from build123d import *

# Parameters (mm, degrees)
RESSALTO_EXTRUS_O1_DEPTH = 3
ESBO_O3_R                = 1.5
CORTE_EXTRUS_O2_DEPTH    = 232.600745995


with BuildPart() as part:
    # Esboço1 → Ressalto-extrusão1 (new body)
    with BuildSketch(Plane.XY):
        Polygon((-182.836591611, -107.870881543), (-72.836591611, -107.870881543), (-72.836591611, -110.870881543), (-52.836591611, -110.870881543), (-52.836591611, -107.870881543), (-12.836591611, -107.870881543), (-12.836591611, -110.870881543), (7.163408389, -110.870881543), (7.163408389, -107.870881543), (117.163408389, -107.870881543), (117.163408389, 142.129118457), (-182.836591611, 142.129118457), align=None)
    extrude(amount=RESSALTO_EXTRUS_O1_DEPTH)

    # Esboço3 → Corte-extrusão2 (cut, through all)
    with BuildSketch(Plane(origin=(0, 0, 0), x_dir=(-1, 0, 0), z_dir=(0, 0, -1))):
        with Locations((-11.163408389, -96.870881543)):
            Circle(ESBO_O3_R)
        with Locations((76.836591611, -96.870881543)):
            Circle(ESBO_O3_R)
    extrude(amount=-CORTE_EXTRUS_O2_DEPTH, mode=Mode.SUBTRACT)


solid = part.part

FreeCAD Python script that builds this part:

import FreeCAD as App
import Part
import Sketcher

V = App.Vector


def add_polygon(sketch, points):
    """Adds a closed chain of lines whose ends are joined by coincident constraints."""
    first, n = sketch.GeometryCount, len(points)
    for a, b in zip(points, points[1:] + points[:1]):
        sketch.addGeometry(Part.LineSegment(App.Vector(*a, 0), App.Vector(*b, 0)), False)
    for i in range(n):
        sketch.addConstraint(Sketcher.Constraint("Coincident", first + i, 2, first + (i + 1) % n, 1))

doc = App.newDocument("Part")
body = doc.addObject("PartDesign::Body", "Body")

# Sketch on XY plane
sketch1 = doc.addObject("Sketcher::SketchObject", "Sketch")
body.addObject(sketch1)
sketch1.AttachmentSupport = (doc.XY_Plane, [""])
sketch1.MapMode = "FlatFace"
add_polygon(sketch1, [(-182.836592, -107.870882), (-72.836592, -107.870882), (-72.836592, -110.870882), (-52.836592, -110.870882), (-52.836592, -107.870882), (-12.836592, -107.870882), (-12.836592, -110.870882), (7.163408, -110.870882), (7.163408, -107.870882), (117.163408, -107.870882), (117.163408, 142.129118), (-182.836592, 142.129118)])  # lines 0-11
sketch1.addConstraint([
    Sketcher.Constraint("Horizontal", 0),
    Sketcher.Constraint("Vertical", 1),
    Sketcher.Constraint("Horizontal", 2),
    Sketcher.Constraint("Vertical", 3),
    Sketcher.Constraint("Horizontal", 4),
    Sketcher.Constraint("Vertical", 5),
    Sketcher.Constraint("Horizontal", 6),
    Sketcher.Constraint("Vertical", 7),
    Sketcher.Constraint("Horizontal", 8),
    Sketcher.Constraint("Vertical", 9),
    Sketcher.Constraint("Horizontal", 10),
    Sketcher.Constraint("Vertical", 11),
    Sketcher.Constraint("Horizontal", 0, 2, 3, 2),
    Sketcher.Constraint("Horizontal", 2, 2, 5, 2),
    Sketcher.Constraint("Horizontal", 4, 2, 7, 2),
    Sketcher.Constraint("Equal", 2, 6),
    Sketcher.Constraint("Equal", 0, 8),
    Sketcher.Constraint("DistanceX", 0, 1, 0, 2, 110.0),
    Sketcher.Constraint("DistanceX", 2, 1, 2, 2, 20.0),
    Sketcher.Constraint("DistanceX", 4, 1, 4, 2, 40.0),
    Sketcher.Constraint("DistanceY", 1, 2, 1, 1, 3.0),
    Sketcher.Constraint("DistanceY", 9, 1, 9, 2, 250.0),
    Sketcher.Constraint("DistanceX", 0, 2, -1, 1, 72.836592),
    Sketcher.Constraint("DistanceY", 0, 2, -1, 1, 107.870882),
])
pad1 = doc.addObject("PartDesign::Pad", "Pad")
body.addObject(pad1)
pad1.Profile = sketch1
pad1.Length = 3

# Sketch on XY plane
sketch2 = doc.addObject("Sketcher::SketchObject", "Sketch001")
body.addObject(sketch2)
sketch2.AttachmentSupport = (doc.XY_Plane, [""])
sketch2.MapMode = "FlatFace"
sketch2.addGeometry([
    Part.Circle(V(11.163408, -96.870882, 0), V(0, 0, 1), 1.5),
    Part.Circle(V(-76.836592, -96.870882, 0), V(0, 0, 1), 1.5),
], False)
sketch2.addConstraint([
    Sketcher.Constraint("Equal", 0, 1),
    Sketcher.Constraint("Horizontal", 0, 3, 1, 3),
    Sketcher.Constraint("Diameter", 0, 3.0),
    Sketcher.Constraint("DistanceX", 1, 3, 0, 3, 88.0),
    Sketcher.Constraint("DistanceX", -1, 1, 0, 3, 11.163408),
    Sketcher.Constraint("DistanceY", 0, 3, -1, 1, 96.870882),
])
pocket1 = doc.addObject("PartDesign::Pocket", "Pocket")
body.addObject(pocket1)
pocket1.Profile = sketch2
pocket1.Type = "ThroughAll"
pocket1.Reversed = True

doc.recompute()
